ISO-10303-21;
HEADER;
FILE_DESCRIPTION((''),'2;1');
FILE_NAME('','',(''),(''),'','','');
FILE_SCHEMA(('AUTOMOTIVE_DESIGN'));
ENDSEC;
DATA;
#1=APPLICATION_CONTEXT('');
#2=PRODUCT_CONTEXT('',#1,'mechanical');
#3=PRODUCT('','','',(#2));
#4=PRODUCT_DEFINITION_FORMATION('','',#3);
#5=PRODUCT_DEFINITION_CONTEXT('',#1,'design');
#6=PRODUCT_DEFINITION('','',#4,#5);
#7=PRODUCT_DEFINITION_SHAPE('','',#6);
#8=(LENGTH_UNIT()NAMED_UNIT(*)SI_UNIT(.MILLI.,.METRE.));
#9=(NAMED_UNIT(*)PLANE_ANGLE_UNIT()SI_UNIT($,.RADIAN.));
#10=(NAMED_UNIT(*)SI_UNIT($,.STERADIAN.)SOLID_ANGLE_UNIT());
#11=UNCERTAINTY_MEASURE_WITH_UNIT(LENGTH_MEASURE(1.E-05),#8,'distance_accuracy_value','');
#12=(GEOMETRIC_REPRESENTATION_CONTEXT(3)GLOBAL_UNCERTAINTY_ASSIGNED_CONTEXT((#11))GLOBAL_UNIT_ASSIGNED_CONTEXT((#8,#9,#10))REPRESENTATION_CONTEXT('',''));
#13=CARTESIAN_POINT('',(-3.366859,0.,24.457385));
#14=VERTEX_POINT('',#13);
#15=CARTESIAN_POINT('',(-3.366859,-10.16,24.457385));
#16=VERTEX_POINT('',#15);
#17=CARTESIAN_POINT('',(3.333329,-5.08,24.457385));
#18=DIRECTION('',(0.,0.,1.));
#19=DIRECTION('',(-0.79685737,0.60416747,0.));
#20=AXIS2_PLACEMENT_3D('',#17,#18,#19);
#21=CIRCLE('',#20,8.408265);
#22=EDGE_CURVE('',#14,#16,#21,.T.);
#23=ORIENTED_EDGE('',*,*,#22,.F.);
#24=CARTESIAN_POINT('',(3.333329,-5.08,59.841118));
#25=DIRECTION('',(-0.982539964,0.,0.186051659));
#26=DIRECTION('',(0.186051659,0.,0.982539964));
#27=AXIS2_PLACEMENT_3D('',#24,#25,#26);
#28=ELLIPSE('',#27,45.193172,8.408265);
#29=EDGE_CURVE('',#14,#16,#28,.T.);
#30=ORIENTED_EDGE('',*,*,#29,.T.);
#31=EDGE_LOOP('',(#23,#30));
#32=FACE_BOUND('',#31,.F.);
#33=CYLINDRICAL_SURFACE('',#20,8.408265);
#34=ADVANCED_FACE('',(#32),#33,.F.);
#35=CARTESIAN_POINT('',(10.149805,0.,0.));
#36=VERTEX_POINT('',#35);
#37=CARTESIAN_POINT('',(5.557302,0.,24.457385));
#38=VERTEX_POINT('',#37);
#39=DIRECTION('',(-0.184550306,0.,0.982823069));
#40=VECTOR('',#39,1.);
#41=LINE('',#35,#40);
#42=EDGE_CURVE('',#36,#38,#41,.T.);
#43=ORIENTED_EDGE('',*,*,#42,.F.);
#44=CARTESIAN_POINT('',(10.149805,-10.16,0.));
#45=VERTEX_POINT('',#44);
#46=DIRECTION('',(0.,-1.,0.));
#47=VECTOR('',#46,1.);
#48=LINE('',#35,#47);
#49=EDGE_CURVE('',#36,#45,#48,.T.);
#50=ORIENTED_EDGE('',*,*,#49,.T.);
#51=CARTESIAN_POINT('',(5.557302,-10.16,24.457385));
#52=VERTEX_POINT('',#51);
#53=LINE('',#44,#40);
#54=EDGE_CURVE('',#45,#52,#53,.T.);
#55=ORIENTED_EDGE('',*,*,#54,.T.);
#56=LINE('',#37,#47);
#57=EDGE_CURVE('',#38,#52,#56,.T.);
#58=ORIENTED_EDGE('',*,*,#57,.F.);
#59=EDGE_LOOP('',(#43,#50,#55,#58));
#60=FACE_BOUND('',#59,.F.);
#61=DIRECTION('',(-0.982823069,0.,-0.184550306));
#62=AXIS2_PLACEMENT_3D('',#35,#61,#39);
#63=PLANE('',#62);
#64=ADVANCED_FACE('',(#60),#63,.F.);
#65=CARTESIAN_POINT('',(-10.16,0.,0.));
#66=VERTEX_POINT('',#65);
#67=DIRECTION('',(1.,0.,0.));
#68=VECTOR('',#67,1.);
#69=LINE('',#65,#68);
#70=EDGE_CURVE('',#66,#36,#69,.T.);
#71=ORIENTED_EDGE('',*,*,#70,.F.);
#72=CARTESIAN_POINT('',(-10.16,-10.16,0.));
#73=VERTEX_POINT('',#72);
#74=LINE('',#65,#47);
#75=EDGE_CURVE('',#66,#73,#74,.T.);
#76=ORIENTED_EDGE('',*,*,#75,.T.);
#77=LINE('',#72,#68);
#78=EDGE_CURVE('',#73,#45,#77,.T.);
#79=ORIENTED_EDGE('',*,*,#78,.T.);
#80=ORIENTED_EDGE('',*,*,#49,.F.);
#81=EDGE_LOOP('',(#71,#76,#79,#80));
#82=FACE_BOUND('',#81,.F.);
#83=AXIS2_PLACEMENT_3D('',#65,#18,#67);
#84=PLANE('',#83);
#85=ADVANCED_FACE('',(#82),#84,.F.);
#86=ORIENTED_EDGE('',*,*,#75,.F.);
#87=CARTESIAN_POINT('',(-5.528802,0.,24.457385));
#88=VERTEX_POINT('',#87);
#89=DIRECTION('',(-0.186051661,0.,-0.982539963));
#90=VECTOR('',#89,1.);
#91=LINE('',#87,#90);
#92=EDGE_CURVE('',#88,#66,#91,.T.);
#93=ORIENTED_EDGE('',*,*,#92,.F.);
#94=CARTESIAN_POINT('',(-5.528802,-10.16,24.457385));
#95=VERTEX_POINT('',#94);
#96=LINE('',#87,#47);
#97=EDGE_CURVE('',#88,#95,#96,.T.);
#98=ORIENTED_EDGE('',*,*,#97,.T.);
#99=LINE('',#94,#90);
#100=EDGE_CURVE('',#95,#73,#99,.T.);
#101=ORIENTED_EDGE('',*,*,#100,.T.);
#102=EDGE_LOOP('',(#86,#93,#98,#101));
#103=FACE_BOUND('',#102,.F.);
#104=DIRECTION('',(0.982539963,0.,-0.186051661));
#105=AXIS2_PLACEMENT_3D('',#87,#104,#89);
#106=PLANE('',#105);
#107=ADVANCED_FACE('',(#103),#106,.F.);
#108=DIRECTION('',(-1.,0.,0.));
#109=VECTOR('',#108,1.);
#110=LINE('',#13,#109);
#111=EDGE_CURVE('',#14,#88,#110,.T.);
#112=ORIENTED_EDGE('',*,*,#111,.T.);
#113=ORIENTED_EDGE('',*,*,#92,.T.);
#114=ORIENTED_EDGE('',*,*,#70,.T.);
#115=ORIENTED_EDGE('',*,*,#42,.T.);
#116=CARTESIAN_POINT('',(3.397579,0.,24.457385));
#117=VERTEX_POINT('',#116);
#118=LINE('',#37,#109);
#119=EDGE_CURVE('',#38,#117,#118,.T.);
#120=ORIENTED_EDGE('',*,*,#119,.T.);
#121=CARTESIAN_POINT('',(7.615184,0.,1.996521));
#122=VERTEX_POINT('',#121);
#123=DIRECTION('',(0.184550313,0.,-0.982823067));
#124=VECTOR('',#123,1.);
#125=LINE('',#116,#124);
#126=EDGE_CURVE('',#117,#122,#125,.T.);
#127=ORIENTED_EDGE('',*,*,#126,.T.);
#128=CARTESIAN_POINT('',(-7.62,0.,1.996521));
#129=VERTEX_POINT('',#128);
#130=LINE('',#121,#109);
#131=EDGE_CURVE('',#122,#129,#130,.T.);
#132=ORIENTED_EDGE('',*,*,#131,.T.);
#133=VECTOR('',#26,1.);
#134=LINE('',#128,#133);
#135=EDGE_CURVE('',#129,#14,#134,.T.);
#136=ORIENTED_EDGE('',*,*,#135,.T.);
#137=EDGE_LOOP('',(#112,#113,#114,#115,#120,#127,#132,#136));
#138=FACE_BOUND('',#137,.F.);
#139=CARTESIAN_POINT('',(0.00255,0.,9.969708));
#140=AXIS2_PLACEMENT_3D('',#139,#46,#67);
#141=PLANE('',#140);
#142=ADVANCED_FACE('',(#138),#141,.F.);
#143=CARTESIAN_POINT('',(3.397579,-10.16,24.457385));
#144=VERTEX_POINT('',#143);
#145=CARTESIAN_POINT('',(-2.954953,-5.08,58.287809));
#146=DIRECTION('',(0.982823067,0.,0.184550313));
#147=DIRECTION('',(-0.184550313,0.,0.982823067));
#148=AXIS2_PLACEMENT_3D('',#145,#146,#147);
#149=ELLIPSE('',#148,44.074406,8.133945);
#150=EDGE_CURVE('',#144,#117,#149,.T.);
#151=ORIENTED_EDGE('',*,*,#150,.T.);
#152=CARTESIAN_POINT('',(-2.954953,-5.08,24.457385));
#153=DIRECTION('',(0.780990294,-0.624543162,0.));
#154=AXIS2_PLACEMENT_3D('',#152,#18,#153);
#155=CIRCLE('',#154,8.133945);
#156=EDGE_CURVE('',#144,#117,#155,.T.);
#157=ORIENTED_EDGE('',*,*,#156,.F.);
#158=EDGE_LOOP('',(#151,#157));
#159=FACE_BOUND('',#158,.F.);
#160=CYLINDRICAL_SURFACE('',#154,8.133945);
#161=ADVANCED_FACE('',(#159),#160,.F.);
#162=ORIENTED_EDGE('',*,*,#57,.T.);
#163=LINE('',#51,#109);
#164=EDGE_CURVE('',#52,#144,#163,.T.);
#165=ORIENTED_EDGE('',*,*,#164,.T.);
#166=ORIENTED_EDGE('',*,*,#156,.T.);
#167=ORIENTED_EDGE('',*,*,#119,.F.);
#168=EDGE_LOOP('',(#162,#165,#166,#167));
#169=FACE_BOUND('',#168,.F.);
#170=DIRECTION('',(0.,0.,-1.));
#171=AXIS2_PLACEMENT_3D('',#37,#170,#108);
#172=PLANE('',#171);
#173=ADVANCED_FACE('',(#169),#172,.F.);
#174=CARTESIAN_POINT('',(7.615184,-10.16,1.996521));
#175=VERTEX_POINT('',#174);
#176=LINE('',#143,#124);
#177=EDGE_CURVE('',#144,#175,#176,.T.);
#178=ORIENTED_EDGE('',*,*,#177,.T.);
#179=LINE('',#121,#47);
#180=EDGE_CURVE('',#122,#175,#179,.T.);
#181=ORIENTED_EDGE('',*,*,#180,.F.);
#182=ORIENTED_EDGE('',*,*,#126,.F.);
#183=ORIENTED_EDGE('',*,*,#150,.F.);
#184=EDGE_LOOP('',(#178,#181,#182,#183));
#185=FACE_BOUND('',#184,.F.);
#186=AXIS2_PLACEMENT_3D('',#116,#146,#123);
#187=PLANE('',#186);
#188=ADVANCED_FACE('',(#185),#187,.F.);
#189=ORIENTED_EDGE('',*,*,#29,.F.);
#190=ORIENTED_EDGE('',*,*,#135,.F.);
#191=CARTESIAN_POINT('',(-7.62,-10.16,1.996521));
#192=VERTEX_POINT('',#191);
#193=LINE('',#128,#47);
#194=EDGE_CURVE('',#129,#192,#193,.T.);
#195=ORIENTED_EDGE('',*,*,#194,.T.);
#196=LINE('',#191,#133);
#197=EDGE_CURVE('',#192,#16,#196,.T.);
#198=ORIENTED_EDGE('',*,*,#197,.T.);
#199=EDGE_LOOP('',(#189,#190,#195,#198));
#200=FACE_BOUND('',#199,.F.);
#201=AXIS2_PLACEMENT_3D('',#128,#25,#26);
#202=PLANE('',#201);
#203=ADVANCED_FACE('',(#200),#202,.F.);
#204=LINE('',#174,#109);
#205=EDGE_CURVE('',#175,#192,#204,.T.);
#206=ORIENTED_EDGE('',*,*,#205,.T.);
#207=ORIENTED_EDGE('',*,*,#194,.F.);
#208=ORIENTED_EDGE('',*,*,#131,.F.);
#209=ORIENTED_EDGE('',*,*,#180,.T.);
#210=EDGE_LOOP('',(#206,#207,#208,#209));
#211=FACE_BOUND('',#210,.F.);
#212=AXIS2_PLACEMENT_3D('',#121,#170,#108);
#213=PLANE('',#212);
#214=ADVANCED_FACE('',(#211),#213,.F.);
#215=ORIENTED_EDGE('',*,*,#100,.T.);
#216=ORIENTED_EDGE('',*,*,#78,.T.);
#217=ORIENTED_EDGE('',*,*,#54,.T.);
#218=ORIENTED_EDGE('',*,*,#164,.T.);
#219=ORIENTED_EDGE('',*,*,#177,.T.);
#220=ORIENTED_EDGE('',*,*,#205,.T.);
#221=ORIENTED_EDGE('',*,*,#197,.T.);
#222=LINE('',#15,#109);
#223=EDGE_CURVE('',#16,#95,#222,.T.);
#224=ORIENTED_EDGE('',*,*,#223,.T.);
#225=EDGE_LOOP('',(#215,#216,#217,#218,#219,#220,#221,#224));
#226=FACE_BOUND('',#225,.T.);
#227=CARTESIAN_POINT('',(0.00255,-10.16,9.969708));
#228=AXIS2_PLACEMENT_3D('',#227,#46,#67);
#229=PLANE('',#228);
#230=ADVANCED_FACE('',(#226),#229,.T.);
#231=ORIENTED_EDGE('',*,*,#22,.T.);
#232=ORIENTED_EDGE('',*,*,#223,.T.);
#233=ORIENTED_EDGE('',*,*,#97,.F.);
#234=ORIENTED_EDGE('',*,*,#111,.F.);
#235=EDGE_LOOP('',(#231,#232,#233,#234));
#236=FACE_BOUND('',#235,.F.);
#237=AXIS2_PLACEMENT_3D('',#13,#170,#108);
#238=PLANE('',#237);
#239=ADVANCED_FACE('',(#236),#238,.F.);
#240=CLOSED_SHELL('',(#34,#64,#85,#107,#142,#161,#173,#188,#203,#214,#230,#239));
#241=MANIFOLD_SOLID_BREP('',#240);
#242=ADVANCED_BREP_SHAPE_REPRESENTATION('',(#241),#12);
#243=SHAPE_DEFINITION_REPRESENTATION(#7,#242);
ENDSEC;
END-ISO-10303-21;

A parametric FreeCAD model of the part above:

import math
import FreeCAD as App
import Part
import Sketcher
Q = App.Units.Quantity


def add_polygon(sketch, points):
    """Adds a closed chain of lines whose ends are joined by coincident constraints."""
    first, n = sketch.GeometryCount, len(points)
    for a, b in zip(points, points[1:] + points[:1]):
        sketch.addGeometry(Part.LineSegment(App.Vector(*a, 0), App.Vector(*b, 0)), False)
    for i in range(n):
        sketch.addConstraint(Sketcher.Constraint("Coincident", first + i, 2, first + (i + 1) % n, 1))

doc = App.newDocument("Part")
params = doc.addObject("Spreadsheet::Sheet", "Params")
for row, (alias, value) in enumerate([
    ("sketch1_length", "0.9 in"),
    ("sketch1_length2", "0.98 in"),
    ("pad1_length", "0.4 in"),
    ("sketch2_height", "0.4 in"),
    ("pocket1_length", "0.8 in"),
    ("sketch3_height", "0.4 in"),
    ("pocket2_length", "0.8 in"),
], start=1):
    params.set(f"A{row}", alias)
    params.set(f"B{row}", "=" + value)
    params.setAlias(f"B{row}", alias)

body = doc.addObject("PartDesign::Body", "Body")

# Sketch on XZ plane
sketch1 = doc.addObject("Sketcher::SketchObject", "Sketch")
body.addObject(sketch1)
sketch1.AttachmentSupport = (doc.XZ_Plane, [""])
sketch1.MapMode = "FlatFace"
add_polygon(sketch1, [(-10.2, 0), (10.1, 0), (5.6, 24.5), (3.4, 24.5), (7.6, 2), (-7.6, 2), (-3.4, 24.5), (-5.5, 24.5)])  # lines 0-7
sketch1.addConstraint([
    Sketcher.Constraint("Horizontal", 0),
    Sketcher.Constraint("Horizontal", 2),
    Sketcher.Constraint("Horizontal", 4),
    Sketcher.Constraint("Horizontal", 6),
    Sketcher.Constraint("PointOnObject", 0, 2, -1),
    Sketcher.Constraint("Parallel", 1, 3),
    Sketcher.Constraint("Parallel", 5, 7),
    Sketcher.Constraint("Horizontal", 2, 2, 5, 2),
    Sketcher.Constraint("Distance", 5, Q("0.9 in")),
    Sketcher.Constraint("DistanceX", 4, 2, -1, 1, Q("0.3 in")),
    Sketcher.Constraint("DistanceX", 7, 2, -1, 1, Q("0.4 in")),
    Sketcher.Constraint("Distance", 7, Q("0.98 in")),
    Sketcher.Constraint("DistanceX", 6, 2, -1, 1, 5.528802),
    Sketcher.Constraint("Distance", 1, 24.88483),
    Sketcher.Constraint("DistanceX", 0, 1, 0, 2, 20.309805),
    Sketcher.Constraint("DistanceX", 2, 2, 2, 1, 2.159723),
])
sketch1.setExpression("Constraints[16]", "Params.sketch1_length")
sketch1.setExpression("Constraints[19]", "Params.sketch1_length2")
pad1 = doc.addObject("PartDesign::Pad", "Pad")
body.addObject(pad1)
pad1.Profile = sketch1
pad1.setExpression("Length", "Params.pad1_length")

# Sketch on XY plane
sketch2 = doc.addObject("Sketcher::SketchObject", "Sketch001")
body.addObject(sketch2)
sketch2.AttachmentSupport = (doc.XY_Plane, [""])
sketch2.MapMode = "FlatFace"
sketch2.AttachmentOffset = App.Placement(App.Vector(0, 0, 24.457385), App.Rotation())
sketch2.addGeometry([
    Part.LineSegment(App.Vector(-3, -10, 0), App.Vector(-3, 0, 0)),
    Part.ArcOfCircle(Part.Circle(App.Vector(3, -5, 0), App.Vector(0, 0, 1), 8), math.radians(143), math.radians(217)),
], False)
sketch2.addConstraint([
    Sketcher.Constraint("Coincident", 0, 1, 1, 2),
    Sketcher.Constraint("Coincident", 1, 1, 0, 2),
    Sketcher.Constraint("Vertical", 0),
    Sketcher.Constraint("PointOnObject", 1, 1, -1),
    Sketcher.Constraint("DistanceY", 0, 1, 0, 2, Q("0.4 in")),
    Sketcher.Constraint("Radius", 1, 8.408265),
    Sketcher.Constraint("DistanceX", -1, 1, 1, 3, 3.333329),
])
sketch2.setExpression("Constraints[4]", "Params.sketch2_height")
pocket1 = doc.addObject("PartDesign::Pocket", "Pocket")
body.addObject(pocket1)
pocket1.Profile = sketch2
pocket1.setExpression("Length", "Params.pocket1_length")

# Sketch on XY plane
sketch3 = doc.addObject("Sketcher::SketchObject", "Sketch002")
body.addObject(sketch3)
sketch3.AttachmentSupport = (doc.XY_Plane, [""])
sketch3.MapMode = "FlatFace"
sketch3.AttachmentOffset = App.Placement(App.Vector(0, 0, 24.457385), App.Rotation())
sketch3.addGeometry([
    Part.LineSegment(App.Vector(3, 0, 0), App.Vector(3, -10, 0)),
    Part.ArcOfCircle(Part.Circle(App.Vector(-3, -5, 0), App.Vector(0, 0, 1), 8), math.radians(-39), math.radians(39)),
], False)
sketch3.addConstraint([
    Sketcher.Constraint("Coincident", 0, 1, 1, 2),
    Sketcher.Constraint("Coincident", 1, 1, 0, 2),
    Sketcher.Constraint("Vertical", 0),
    Sketcher.Constraint("PointOnObject", 0, 1, -1),
    Sketcher.Constraint("DistanceY", 0, 2, 0, 1, Q("0.4 in")),
    Sketcher.Constraint("Radius", 1, 8.133945),
    Sketcher.Constraint("DistanceX", -1, 1, 0, 1, 3.397579),
])
sketch3.setExpression("Constraints[4]", "Params.sketch3_height")
pocket2 = doc.addObject("PartDesign::Pocket", "Pocket001")
body.addObject(pocket2)
pocket2.Profile = sketch3
pocket2.setExpression("Length", "Params.pocket2_length")

doc.recompute()
